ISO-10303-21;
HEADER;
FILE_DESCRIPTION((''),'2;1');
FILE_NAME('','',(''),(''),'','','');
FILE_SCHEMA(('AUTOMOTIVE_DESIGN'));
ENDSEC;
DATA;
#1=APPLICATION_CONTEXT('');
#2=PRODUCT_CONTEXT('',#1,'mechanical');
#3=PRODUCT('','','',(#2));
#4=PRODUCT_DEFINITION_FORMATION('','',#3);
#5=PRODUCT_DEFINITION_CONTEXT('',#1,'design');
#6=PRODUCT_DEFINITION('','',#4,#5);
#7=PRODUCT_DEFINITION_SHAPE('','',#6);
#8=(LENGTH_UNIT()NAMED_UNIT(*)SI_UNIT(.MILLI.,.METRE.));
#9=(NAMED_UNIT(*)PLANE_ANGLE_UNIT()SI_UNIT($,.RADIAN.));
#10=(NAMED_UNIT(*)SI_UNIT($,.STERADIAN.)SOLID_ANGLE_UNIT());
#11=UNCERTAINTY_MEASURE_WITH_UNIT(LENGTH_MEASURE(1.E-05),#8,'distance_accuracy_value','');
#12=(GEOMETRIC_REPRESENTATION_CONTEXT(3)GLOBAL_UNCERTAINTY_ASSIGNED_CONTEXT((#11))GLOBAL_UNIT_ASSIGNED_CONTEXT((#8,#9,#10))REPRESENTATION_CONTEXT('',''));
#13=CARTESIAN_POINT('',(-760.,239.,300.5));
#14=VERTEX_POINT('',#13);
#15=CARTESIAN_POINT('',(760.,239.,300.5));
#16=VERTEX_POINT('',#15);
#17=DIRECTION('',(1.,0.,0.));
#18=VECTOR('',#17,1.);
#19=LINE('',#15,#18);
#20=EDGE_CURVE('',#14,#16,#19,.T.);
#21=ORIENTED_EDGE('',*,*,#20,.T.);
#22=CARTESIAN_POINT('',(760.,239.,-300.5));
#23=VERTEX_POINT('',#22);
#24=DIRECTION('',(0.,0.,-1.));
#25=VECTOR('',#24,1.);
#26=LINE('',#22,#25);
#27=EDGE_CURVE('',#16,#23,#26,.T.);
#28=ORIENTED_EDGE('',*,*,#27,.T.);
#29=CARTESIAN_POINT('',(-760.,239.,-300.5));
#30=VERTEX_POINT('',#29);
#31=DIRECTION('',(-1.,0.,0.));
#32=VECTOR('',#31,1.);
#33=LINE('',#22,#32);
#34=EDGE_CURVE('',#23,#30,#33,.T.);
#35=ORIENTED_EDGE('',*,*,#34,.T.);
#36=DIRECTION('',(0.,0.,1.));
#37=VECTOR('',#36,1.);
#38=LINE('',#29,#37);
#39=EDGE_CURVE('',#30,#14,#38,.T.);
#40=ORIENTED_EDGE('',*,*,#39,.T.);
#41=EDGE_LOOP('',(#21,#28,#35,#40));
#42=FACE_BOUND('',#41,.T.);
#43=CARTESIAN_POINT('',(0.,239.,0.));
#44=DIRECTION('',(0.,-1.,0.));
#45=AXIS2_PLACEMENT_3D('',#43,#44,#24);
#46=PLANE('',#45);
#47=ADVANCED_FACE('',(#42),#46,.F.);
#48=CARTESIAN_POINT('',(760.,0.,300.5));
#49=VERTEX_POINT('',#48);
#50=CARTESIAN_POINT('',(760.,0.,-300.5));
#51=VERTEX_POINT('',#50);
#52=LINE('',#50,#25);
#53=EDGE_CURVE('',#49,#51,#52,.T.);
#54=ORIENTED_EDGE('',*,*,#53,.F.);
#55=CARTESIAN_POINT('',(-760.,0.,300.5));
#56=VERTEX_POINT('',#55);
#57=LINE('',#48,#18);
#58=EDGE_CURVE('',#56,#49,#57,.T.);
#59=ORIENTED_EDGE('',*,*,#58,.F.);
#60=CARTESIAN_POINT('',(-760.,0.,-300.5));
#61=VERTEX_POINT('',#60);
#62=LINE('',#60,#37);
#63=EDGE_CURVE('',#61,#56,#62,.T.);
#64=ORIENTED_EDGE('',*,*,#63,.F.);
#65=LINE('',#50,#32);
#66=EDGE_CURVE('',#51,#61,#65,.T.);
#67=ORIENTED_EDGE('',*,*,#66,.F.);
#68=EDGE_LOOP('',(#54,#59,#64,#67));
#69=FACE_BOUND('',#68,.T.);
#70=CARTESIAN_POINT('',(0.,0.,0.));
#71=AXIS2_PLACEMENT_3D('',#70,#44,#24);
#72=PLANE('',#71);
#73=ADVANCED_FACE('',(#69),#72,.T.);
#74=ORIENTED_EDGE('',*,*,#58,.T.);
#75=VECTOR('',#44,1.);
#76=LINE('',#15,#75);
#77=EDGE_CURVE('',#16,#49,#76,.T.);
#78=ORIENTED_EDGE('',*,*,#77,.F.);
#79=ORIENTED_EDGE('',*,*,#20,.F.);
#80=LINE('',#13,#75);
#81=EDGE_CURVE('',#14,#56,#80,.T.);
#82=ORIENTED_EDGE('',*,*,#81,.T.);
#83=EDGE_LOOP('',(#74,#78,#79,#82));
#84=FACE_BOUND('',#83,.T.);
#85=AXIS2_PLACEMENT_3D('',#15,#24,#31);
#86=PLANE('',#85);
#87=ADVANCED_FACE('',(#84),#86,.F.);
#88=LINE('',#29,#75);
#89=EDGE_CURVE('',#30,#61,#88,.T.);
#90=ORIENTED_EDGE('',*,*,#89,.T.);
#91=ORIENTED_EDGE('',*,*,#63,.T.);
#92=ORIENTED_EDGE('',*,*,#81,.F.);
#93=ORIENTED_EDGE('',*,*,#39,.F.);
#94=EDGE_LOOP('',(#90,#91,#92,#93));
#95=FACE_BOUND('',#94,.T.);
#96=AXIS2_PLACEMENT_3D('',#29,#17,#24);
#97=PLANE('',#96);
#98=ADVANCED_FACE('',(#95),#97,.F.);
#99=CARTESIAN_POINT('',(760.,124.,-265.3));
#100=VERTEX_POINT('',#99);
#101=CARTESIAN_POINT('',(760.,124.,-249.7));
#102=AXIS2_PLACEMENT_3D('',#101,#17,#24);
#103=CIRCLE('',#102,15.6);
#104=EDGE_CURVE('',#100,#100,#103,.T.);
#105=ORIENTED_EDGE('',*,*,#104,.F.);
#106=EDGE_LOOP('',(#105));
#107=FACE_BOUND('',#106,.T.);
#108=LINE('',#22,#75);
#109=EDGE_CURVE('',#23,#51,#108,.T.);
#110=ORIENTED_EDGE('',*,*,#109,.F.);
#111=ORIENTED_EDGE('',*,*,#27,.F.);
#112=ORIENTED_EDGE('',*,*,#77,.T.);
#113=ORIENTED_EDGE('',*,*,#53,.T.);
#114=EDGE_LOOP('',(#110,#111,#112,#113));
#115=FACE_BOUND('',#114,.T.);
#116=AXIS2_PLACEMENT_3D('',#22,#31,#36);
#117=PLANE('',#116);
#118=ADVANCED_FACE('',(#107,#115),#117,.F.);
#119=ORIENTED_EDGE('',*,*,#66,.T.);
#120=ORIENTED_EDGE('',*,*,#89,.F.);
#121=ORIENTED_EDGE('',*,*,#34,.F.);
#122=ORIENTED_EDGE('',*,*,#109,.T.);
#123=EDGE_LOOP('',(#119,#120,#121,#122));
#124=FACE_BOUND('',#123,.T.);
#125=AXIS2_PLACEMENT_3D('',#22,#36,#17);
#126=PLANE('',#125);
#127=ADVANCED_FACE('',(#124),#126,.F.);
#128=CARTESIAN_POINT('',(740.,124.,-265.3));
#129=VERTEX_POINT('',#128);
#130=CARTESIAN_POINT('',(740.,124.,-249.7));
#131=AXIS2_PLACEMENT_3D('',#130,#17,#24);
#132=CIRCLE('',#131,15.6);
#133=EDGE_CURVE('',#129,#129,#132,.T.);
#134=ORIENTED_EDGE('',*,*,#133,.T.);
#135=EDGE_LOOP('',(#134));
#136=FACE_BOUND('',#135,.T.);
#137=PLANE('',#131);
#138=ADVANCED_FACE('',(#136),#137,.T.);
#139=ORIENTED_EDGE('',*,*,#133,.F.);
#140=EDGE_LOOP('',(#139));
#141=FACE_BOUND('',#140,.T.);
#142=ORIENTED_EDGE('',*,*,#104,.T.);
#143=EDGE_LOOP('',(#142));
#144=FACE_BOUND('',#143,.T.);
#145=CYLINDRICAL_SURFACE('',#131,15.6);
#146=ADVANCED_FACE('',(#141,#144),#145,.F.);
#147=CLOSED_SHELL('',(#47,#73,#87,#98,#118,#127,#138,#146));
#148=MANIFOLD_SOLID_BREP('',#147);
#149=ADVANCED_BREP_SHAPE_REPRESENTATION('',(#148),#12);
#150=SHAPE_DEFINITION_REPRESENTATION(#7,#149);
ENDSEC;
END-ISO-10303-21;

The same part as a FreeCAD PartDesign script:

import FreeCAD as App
import Part
import Sketcher

doc = App.newDocument("Part")
body = doc.addObject("PartDesign::Body", "Body")

sketch1 = body.newObject("Sketcher::SketchObject", "Sketch")
sketch1.AttachmentSupport = (doc.getObject("XZ_Plane"), [""])
sketch1.MapMode = "FlatFace"
sketch1.addGeometry(Part.LineSegment(App.Vector(-760, -300, 0), App.Vector(-760, 300, 0)), False)
sketch1.addGeometry(Part.LineSegment(App.Vector(-760, 300, 0), App.Vector(760, 300, 0)), False)
sketch1.addGeometry(Part.LineSegment(App.Vector(760, 300, 0), App.Vector(760, -300, 0)), False)
sketch1.addGeometry(Part.LineSegment(App.Vector(760, -300, 0), App.Vector(-760, -300, 0)), False)
sketch1.addConstraint(Sketcher.Constraint("Coincident", 0, 2, 1, 1))
sketch1.addConstraint(Sketcher.Constraint("Coincident", 1, 2, 2, 1))
sketch1.addConstraint(Sketcher.Constraint("Coincident", 2, 2, 3, 1))
sketch1.addConstraint(Sketcher.Constraint("Coincident", 3, 2, 0, 1))
sketch1.addConstraint(Sketcher.Constraint("Vertical", 0))
sketch1.addConstraint(Sketcher.Constraint("Horizontal", 1))
sketch1.addConstraint(Sketcher.Constraint("Vertical", 2))
sketch1.addConstraint(Sketcher.Constraint("Horizontal", 3))
sketch1.addConstraint(Sketcher.Constraint("Symmetric", 0, 2, 2, 2, -1, 1))
sketch1.addConstraint(Sketcher.Constraint("DistanceX", 1, 1, 1, 2, 1520.0))
sketch1.addConstraint(Sketcher.Constraint("DistanceY", 0, 1, 0, 2, 601.0))
pad1 = body.newObject("PartDesign::Pad", "Pad")
pad1.Profile = sketch1
pad1.Length = 239
pad1.Reversed = True

sketch2 = body.newObject("Sketcher::SketchObject", "Sketch001")
sketch2.AttachmentSupport = (doc.getObject("YZ_Plane"), [""])
sketch2.MapMode = "FlatFace"
sketch2.AttachmentOffset = App.Placement(App.Vector(0, 0, 760), App.Rotation())
sketch2.addGeometry(Part.Circle(App.Vector(124, -250, 0), App.Vector(0, 0, 1), 16), False)
sketch2.addConstraint(Sketcher.Constraint("Diameter", 0, 31.2))
sketch2.addConstraint(Sketcher.Constraint("DistanceX", -1, 1, 0, 3, 124.0))
sketch2.addConstraint(Sketcher.Constraint("DistanceY", 0, 3, -1, 1, 249.7))
pocket1 = body.newObject("PartDesign::Pocket", "Pocket")
pocket1.Profile = sketch2
pocket1.Length = 20

doc.recompute()
